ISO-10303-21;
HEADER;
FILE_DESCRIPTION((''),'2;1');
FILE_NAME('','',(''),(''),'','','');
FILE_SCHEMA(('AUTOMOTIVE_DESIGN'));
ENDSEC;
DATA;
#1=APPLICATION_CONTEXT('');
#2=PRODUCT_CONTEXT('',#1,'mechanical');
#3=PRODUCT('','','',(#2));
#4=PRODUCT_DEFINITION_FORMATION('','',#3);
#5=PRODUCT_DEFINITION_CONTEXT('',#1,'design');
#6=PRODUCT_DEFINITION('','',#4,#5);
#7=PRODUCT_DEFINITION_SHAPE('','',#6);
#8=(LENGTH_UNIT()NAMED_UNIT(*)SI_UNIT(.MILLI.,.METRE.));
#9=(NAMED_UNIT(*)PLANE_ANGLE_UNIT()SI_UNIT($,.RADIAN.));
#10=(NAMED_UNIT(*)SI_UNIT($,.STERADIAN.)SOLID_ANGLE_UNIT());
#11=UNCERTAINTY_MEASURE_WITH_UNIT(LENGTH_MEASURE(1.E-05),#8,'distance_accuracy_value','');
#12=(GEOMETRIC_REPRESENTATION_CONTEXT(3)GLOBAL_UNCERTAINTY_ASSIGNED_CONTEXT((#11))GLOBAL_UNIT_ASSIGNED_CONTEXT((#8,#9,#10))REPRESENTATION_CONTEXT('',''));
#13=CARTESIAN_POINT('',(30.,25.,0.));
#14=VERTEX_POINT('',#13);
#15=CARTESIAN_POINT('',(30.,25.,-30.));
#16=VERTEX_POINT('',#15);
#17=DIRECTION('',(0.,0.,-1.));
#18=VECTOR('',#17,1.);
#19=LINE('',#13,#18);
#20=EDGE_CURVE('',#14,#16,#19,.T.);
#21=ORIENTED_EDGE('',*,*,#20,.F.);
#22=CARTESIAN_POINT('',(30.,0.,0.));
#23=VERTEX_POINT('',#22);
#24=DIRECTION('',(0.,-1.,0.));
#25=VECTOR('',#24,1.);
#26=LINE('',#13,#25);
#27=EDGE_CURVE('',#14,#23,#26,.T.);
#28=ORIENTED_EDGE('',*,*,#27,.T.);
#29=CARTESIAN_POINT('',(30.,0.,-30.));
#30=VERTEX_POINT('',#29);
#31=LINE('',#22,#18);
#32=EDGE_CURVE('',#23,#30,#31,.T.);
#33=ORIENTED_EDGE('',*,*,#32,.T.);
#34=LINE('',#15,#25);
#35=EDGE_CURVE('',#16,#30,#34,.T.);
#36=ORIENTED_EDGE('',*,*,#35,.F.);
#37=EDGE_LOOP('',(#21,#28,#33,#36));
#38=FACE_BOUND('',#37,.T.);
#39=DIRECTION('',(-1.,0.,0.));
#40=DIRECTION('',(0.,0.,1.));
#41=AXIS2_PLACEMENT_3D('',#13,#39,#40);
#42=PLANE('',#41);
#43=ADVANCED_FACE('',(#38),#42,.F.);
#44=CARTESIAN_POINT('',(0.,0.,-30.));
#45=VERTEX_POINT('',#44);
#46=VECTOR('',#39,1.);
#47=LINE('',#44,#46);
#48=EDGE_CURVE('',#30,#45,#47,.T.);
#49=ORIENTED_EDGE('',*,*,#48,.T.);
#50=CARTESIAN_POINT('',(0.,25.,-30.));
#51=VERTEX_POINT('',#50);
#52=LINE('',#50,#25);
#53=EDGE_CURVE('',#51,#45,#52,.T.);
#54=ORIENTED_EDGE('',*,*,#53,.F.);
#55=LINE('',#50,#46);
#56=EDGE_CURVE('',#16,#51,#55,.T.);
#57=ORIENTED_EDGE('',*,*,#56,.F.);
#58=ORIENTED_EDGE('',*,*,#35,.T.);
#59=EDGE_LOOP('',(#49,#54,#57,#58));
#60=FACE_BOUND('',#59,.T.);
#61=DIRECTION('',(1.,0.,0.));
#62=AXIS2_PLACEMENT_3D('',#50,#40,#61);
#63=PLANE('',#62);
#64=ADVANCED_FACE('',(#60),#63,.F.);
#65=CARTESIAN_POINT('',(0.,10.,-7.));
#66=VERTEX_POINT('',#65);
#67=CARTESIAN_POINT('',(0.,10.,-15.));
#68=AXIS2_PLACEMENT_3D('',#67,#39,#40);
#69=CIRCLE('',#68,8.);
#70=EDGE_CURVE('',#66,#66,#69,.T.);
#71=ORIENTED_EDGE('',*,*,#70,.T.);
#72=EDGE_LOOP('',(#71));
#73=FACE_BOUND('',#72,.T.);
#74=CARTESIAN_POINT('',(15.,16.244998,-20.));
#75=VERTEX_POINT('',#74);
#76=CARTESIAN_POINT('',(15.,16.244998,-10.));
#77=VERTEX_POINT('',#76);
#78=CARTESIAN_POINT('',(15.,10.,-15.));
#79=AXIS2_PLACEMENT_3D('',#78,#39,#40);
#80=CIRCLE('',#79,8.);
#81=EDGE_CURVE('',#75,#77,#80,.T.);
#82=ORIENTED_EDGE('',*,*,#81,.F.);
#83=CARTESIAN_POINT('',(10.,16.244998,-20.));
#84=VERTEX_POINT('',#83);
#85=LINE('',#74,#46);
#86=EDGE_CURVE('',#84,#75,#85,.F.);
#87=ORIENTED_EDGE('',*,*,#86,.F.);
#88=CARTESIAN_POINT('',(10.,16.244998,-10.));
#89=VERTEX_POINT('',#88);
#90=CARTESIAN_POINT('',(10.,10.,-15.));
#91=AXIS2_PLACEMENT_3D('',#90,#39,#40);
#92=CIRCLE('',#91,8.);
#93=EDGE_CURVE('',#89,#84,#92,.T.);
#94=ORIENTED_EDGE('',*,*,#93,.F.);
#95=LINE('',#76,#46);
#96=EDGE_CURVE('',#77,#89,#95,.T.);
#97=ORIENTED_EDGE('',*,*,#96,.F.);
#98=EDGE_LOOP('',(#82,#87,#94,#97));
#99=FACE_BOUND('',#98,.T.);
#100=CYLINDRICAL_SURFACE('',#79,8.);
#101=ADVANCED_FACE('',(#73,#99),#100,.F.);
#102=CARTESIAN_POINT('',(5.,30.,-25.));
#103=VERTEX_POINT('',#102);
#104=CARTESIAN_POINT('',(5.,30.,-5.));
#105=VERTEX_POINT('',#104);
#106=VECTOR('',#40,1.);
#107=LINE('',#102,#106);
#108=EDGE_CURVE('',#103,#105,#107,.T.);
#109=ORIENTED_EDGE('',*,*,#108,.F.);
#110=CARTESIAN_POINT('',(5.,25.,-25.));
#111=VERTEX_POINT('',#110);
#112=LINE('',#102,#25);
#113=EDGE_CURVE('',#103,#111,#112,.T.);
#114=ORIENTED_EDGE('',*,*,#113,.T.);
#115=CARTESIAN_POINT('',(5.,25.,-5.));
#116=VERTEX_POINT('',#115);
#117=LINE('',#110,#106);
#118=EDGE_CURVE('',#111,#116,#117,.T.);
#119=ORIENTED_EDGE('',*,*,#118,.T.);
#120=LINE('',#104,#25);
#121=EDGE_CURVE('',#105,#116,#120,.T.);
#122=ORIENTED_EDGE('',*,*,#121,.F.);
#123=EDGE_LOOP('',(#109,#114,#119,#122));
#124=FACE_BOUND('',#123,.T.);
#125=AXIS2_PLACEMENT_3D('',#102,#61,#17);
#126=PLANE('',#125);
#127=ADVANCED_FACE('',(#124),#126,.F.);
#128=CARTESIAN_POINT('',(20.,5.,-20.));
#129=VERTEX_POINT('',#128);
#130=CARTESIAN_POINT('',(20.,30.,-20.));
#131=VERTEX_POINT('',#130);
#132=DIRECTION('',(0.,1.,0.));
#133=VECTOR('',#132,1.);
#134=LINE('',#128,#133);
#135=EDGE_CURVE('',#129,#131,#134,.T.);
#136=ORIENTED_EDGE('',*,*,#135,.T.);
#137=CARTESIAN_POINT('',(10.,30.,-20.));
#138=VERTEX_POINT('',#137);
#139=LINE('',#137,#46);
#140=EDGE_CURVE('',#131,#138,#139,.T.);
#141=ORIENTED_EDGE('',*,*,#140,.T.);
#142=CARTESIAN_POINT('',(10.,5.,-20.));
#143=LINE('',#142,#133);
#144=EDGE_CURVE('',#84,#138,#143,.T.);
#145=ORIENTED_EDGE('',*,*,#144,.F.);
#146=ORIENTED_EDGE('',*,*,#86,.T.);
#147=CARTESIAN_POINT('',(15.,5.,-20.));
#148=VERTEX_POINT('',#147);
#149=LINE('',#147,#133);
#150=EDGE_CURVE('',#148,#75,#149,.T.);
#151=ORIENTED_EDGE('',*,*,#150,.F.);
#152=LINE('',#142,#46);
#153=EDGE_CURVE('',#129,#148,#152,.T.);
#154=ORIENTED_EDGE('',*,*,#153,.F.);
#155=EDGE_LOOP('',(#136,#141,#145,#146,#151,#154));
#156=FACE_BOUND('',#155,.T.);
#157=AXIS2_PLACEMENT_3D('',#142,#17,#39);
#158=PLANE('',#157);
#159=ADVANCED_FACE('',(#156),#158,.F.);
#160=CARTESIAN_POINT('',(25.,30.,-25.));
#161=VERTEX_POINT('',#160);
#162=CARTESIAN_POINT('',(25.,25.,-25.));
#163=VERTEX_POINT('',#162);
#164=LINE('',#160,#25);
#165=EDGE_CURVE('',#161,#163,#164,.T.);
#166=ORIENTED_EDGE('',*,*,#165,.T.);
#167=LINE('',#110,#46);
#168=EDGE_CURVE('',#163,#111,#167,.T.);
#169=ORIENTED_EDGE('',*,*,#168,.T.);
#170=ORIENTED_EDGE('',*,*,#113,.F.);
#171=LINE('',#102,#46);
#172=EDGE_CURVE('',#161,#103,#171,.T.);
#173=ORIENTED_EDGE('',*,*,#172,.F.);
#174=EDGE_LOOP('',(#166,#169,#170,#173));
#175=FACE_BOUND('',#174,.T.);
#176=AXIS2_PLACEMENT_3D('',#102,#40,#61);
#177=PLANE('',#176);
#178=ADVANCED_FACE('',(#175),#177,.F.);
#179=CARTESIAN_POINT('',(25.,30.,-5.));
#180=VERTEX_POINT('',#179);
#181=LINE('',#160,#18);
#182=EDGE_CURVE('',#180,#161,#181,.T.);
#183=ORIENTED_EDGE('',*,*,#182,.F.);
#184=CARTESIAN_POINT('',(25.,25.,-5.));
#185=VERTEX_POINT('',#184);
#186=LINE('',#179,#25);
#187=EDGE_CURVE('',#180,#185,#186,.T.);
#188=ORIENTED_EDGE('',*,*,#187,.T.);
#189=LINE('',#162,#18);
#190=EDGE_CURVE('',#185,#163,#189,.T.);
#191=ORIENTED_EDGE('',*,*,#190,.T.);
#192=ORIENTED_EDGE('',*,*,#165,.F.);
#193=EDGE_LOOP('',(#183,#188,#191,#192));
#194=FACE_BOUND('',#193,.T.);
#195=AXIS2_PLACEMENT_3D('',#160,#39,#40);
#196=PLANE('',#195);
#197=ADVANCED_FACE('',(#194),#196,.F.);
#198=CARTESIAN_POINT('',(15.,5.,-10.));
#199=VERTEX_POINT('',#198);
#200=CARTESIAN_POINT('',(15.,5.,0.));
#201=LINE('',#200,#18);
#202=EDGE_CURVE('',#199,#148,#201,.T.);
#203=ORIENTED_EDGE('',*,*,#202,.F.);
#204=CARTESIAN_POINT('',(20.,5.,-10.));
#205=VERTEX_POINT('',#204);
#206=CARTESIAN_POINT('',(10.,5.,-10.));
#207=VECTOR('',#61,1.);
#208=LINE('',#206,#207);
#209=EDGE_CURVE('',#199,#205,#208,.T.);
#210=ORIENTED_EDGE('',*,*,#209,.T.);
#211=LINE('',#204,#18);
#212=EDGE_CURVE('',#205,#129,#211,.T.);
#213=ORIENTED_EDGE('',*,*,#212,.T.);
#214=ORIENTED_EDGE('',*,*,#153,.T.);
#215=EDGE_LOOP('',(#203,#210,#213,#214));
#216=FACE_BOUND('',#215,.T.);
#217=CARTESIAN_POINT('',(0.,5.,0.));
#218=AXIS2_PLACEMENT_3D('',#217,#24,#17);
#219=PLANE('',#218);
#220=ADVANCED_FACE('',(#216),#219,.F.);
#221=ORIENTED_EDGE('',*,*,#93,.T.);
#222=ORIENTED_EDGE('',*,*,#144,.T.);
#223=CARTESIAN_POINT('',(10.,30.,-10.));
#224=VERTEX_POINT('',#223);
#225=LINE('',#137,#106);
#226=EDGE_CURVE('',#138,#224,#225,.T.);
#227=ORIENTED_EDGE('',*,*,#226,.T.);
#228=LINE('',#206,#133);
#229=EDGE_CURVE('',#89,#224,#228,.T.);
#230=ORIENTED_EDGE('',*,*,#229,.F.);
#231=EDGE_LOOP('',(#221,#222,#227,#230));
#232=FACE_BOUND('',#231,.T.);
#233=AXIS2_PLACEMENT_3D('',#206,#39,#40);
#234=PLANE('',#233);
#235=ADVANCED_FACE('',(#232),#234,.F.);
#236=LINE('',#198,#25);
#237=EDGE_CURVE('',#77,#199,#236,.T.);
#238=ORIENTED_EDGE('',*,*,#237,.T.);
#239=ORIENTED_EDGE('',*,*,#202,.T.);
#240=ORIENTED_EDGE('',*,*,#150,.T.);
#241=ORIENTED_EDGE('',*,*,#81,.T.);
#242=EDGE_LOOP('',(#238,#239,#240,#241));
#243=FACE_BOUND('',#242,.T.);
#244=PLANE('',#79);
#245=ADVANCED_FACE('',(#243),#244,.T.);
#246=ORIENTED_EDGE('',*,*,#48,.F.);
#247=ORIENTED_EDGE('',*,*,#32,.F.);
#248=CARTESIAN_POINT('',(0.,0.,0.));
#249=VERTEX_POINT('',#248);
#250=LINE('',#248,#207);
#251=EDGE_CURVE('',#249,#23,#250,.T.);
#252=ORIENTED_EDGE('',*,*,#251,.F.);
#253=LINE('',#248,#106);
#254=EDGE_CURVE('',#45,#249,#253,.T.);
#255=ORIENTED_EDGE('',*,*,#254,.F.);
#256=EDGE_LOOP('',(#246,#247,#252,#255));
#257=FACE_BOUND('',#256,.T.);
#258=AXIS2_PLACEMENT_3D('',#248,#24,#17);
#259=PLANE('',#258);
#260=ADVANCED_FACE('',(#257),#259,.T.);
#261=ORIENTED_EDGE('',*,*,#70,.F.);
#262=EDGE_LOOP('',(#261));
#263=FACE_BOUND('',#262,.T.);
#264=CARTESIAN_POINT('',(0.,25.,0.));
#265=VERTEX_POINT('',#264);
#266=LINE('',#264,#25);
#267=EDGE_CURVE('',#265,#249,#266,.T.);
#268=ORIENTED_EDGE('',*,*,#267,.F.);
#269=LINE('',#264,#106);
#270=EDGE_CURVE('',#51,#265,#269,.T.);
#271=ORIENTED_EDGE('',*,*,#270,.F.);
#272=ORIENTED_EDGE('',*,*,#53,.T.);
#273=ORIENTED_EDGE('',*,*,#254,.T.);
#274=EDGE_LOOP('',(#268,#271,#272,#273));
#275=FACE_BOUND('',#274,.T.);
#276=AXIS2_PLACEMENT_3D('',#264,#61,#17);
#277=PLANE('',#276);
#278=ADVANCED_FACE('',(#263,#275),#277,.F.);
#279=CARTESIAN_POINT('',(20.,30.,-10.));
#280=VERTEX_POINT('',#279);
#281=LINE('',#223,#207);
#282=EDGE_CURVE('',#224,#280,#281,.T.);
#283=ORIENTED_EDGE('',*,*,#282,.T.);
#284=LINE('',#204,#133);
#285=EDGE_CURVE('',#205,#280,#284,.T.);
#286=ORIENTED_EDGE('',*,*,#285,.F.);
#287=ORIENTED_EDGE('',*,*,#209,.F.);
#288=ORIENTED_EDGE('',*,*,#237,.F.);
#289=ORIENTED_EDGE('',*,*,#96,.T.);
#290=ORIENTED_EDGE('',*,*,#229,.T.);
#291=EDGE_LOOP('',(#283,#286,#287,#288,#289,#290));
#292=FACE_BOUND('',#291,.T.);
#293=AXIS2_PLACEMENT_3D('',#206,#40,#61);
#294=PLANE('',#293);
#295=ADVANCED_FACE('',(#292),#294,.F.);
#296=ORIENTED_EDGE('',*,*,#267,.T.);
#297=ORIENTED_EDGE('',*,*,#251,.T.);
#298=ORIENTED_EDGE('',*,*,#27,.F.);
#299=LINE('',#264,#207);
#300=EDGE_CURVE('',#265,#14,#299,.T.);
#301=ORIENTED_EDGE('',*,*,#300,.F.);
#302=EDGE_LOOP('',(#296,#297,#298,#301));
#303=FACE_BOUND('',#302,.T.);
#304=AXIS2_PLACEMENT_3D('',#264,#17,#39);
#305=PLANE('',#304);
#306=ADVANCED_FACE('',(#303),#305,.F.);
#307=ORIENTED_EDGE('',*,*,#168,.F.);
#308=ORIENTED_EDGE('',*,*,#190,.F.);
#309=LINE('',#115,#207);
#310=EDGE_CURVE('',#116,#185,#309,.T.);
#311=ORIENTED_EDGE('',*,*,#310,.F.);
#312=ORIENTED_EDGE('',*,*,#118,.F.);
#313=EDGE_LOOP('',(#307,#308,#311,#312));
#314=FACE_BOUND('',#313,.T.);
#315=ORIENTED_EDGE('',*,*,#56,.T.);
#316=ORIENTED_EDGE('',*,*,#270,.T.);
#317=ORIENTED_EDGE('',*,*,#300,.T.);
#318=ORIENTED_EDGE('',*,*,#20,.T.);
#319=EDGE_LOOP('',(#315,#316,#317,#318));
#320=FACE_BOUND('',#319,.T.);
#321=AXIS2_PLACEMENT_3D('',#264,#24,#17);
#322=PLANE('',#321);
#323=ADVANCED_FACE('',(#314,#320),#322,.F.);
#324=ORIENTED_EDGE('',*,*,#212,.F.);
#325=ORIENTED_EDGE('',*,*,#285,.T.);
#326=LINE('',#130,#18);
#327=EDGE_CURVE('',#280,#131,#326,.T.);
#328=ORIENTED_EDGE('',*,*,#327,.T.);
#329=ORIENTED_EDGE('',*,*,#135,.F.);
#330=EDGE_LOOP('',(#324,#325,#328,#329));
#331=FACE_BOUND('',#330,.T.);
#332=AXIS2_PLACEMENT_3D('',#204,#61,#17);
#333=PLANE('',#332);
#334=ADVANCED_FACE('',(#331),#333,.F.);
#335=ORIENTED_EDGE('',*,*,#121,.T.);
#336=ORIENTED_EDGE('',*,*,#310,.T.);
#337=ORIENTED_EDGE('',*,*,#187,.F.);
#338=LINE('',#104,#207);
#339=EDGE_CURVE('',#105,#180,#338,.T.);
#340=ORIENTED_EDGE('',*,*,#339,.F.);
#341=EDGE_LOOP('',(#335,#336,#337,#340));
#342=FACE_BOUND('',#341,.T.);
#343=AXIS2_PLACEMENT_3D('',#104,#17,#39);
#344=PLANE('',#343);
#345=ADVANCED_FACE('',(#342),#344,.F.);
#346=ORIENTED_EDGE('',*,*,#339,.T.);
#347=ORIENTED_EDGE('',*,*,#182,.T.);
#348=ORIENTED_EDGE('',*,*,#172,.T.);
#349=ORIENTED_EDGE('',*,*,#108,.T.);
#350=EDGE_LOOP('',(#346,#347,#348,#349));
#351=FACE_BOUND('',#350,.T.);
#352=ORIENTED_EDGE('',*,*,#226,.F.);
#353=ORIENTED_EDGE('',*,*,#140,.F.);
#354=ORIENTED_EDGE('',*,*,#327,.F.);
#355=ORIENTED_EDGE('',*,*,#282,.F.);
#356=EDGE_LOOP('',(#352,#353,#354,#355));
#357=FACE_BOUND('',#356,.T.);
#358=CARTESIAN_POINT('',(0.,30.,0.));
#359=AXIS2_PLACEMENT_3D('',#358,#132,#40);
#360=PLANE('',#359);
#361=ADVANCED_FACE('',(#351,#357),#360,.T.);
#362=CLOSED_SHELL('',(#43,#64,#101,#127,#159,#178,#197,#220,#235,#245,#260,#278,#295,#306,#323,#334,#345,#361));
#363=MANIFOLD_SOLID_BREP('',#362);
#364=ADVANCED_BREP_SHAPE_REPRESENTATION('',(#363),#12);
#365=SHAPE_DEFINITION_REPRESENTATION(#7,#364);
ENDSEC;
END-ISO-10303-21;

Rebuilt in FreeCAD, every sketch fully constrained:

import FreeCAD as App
import Part
import Sketcher
from FreeCAD import Vector
Q = App.Units.Quantity

doc = App.newDocument("Part")
body = doc.addObject("PartDesign::Body", "Body")

# Sketch on XZ plane
sketch1 = body.newObject("Sketcher::SketchObject", "Sketch")
sketch1.AttachmentSupport = (doc.getObject("XZ_Plane"), [""])
sketch1.MapMode = "FlatFace"
sketch1.addGeometry([
    Part.LineSegment(Vector(0, -30, 0), Vector(0, 0, 0)),
    Part.LineSegment(Vector(0, 0, 0), Vector(30, 0, 0)),
    Part.LineSegment(Vector(30, 0, 0), Vector(30, -30, 0)),
    Part.LineSegment(Vector(30, -30, 0), Vector(0, -30, 0)),
], False)
sketch1.addConstraint([
    Sketcher.Constraint("Coincident", 0, 2, 1, 1),
    Sketcher.Constraint("Coincident", 1, 2, 2, 1),
    Sketcher.Constraint("Coincident", 2, 2, 3, 1),
    Sketcher.Constraint("Coincident", 3, 2, 0, 1),
    Sketcher.Constraint("Vertical", 0),
    Sketcher.Constraint("Horizontal", 1),
    Sketcher.Constraint("Vertical", 2),
    Sketcher.Constraint("Horizontal", 3),
    Sketcher.Constraint("Coincident", 0, 2, -1, 1),
    Sketcher.Constraint("Equal", 3, 0),
    Sketcher.Constraint("DistanceX", 1, 1, 1, 2, Q("30 mm")),
])
pad1 = body.newObject("PartDesign::Pad", "Pad")
pad1.Profile = sketch1
pad1.Length = 25
pad1.Reversed = True

# Sketch on XZ plane
sketch2 = body.newObject("Sketcher::SketchObject", "Sketch001")
sketch2.AttachmentSupport = (doc.getObject("XZ_Plane"), [""])
sketch2.MapMode = "FlatFace"
sketch2.AttachmentOffset = App.Placement(Vector(0, 0, -25), App.Rotation())
sketch2.addGeometry([
    Part.LineSegment(Vector(10, -20, 0), Vector(10, -10, 0)),
    Part.LineSegment(Vector(10, -10, 0), Vector(20, -10, 0)),
    Part.LineSegment(Vector(20, -10, 0), Vector(20, -20, 0)),
    Part.LineSegment(Vector(20, -20, 0), Vector(10, -20, 0)),
], False)
sketch2.addConstraint([
    Sketcher.Constraint("Coincident", 0, 2, 1, 1),
    Sketcher.Constraint("Coincident", 1, 2, 2, 1),
    Sketcher.Constraint("Coincident", 2, 2, 3, 1),
    Sketcher.Constraint("Coincident", 3, 2, 0, 1),
    Sketcher.Constraint("Vertical", 0),
    Sketcher.Constraint("Horizontal", 1),
    Sketcher.Constraint("Vertical", 2),
    Sketcher.Constraint("Horizontal", 3),
    Sketcher.Constraint("Equal", 3, 0),
    Sketcher.Constraint("DistanceX", 1, 1, 1, 2, Q("10 mm")),
    Sketcher.Constraint("DistanceX", -1, 1, 0, 2, Q("10 mm")),
    Sketcher.Constraint("DistanceY", 0, 2, -1, 1, Q("10 mm")),
])
pocket1 = body.newObject("PartDesign::Pocket", "Pocket")
pocket1.Profile = sketch2
pocket1.Length = 20
pocket1.Reversed = True

# Sketch on YZ plane
sketch3 = body.newObject("Sketcher::SketchObject", "Sketch002")
sketch3.AttachmentSupport = (doc.getObject("YZ_Plane"), [""])
sketch3.MapMode = "FlatFace"
sketch3.addGeometry(Part.Circle(Vector(10, -15, 0), Vector(0, 0, 1), 8), False)
sketch3.addConstraint([
    Sketcher.Constraint("Diameter", 0, Q("16 mm")),
    Sketcher.Constraint("DistanceX", -1, 1, 0, 3, Q("10 mm")),
    Sketcher.Constraint("DistanceY", 0, 3, -1, 1, Q("15 mm")),
])
pocket2 = body.newObject("PartDesign::Pocket", "Pocket001")
pocket2.Profile = sketch3
pocket2.Length = 15
pocket2.Reversed = True

# Sketch on XZ plane
sketch4 = body.newObject("Sketcher::SketchObject", "Sketch003")
sketch4.AttachmentSupport = (doc.getObject("XZ_Plane"), [""])
sketch4.MapMode = "FlatFace"
sketch4.AttachmentOffset = App.Placement(Vector(0, 0, -25), App.Rotation())
sketch4.addGeometry([
    Part.LineSegment(Vector(5, -25, 0), Vector(5, -5, 0)),
    Part.LineSegment(Vector(5, -5, 0), Vector(25, -5, 0)),
    Part.LineSegment(Vector(25, -5, 0), Vector(25, -25, 0)),
    Part.LineSegment(Vector(25, -25, 0), Vector(5, -25, 0)),
], False)
sketch4.addConstraint([
    Sketcher.Constraint("Coincident", 0, 2, 1, 1),
    Sketcher.Constraint("Coincident", 1, 2, 2, 1),
    Sketcher.Constraint("Coincident", 2, 2, 3, 1),
    Sketcher.Constraint("Coincident", 3, 2, 0, 1),
    Sketcher.Constraint("Vertical", 0),
    Sketcher.Constraint("Horizontal", 1),
    Sketcher.Constraint("Vertical", 2),
    Sketcher.Constraint("Horizontal", 3),
    Sketcher.Constraint("Equal", 3, 0),
    Sketcher.Constraint("DistanceX", 1, 1, 1, 2, Q("20 mm")),
    Sketcher.Constraint("DistanceX", -1, 1, 0, 2, Q("5 mm")),
    Sketcher.Constraint("DistanceY", 0, 2, -1, 1, Q("5 mm")),
])
pad2 = body.newObject("PartDesign::Pad", "Pad001")
pad2.Profile = sketch4
pad2.Length = 5
pad2.Reversed = True

# Sketch on XZ plane
sketch5 = body.newObject("Sketcher::SketchObject", "Sketch004")
sketch5.AttachmentSupport = (doc.getObject("XZ_Plane"), [""])
sketch5.MapMode = "FlatFace"
sketch5.AttachmentOffset = App.Placement(Vector(0, 0, -30), App.Rotation())
sketch5.addGeometry([
    Part.LineSegment(Vector(10, -20, 0), Vector(10, -10, 0)),
    Part.LineSegment(Vector(10, -10, 0), Vector(20, -10, 0)),
    Part.LineSegment(Vector(20, -10, 0), Vector(20, -20, 0)),
    Part.LineSegment(Vector(20, -20, 0), Vector(10, -20, 0)),
], False)
sketch5.addConstraint([
    Sketcher.Constraint("Coincident", 0, 2, 1, 1),
    Sketcher.Constraint("Coincident", 1, 2, 2, 1),
    Sketcher.Constraint("Coincident", 2, 2, 3, 1),
    Sketcher.Constraint("Coincident", 3, 2, 0, 1),
    Sketcher.Constraint("Vertical", 0),
    Sketcher.Constraint("Horizontal", 1),
    Sketcher.Constraint("Vertical", 2),
    Sketcher.Constraint("Horizontal", 3),
    Sketcher.Constraint("Equal", 3, 0),
    Sketcher.Constraint("DistanceX", 1, 1, 1, 2, Q("10 mm")),
    Sketcher.Constraint("DistanceX", -1, 1, 0, 2, Q("10 mm")),
    Sketcher.Constraint("DistanceY", 0, 2, -1, 1, Q("10 mm")),
])
pocket3 = body.newObject("PartDesign::Pocket", "Pocket002")
pocket3.Profile = sketch5
pocket3.Length = 15
pocket3.Reversed = True

doc.recompute()
